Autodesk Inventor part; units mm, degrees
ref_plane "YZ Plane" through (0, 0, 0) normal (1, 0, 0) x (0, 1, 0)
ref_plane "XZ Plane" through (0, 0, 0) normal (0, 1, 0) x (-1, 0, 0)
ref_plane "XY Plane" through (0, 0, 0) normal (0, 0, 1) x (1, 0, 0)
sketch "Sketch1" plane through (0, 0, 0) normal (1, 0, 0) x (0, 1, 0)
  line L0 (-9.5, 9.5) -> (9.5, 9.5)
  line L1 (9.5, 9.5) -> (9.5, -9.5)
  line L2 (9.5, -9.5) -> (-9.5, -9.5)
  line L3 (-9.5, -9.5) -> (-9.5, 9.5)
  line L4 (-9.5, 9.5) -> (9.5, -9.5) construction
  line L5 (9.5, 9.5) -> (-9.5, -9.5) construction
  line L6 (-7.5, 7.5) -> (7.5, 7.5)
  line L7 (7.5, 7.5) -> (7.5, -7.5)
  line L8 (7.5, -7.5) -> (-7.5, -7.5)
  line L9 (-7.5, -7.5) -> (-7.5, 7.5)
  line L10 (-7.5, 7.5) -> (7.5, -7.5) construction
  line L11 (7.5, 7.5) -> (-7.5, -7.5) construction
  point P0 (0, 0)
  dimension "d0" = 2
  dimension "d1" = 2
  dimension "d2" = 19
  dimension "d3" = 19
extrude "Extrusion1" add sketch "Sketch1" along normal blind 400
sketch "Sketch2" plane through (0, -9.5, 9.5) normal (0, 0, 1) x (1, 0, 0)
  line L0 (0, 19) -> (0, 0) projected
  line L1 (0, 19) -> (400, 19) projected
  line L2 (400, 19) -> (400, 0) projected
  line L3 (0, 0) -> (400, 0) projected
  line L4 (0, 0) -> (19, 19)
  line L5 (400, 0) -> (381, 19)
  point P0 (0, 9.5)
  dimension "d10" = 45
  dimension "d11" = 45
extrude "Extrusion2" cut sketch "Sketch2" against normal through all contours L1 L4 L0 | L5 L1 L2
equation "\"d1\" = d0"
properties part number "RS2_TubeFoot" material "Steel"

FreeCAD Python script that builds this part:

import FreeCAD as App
import Part
import Sketcher

doc = App.newDocument("Part")
body = doc.addObject("PartDesign::Body", "Body")

# Sketch on YZ plane
sketch1 = doc.addObject("Sketcher::SketchObject", "Sketch")
body.addObject(sketch1)
sketch1.AttachmentSupport = (doc.YZ_Plane, [""])
sketch1.MapMode = "FlatFace"
sketch1.addGeometry([
    Part.LineSegment(App.Vector(9.5, 9.5, 0), App.Vector(-9.5, 9.5, 0)),  # 0
    Part.LineSegment(App.Vector(-9.5, 9.5, 0), App.Vector(-9.5, -9.5, 0)),  # 1
    Part.LineSegment(App.Vector(-9.5, -9.5, 0), App.Vector(9.5, -9.5, 0)),  # 2
    Part.LineSegment(App.Vector(9.5, -9.5, 0), App.Vector(9.5, 9.5, 0)),  # 3
    Part.LineSegment(App.Vector(-7.5, -7.5, 0), App.Vector(-7.5, 7.5, 0)),  # 4
    Part.LineSegment(App.Vector(-7.5, 7.5, 0), App.Vector(7.5, 7.5, 0)),  # 5
    Part.LineSegment(App.Vector(7.5, 7.5, 0), App.Vector(7.5, -7.5, 0)),  # 6
    Part.LineSegment(App.Vector(7.5, -7.5, 0), App.Vector(-7.5, -7.5, 0)),  # 7
], False)
sketch1.addConstraint([
    Sketcher.Constraint("Coincident", 0, 2, 1, 1),
    Sketcher.Constraint("Coincident", 1, 2, 2, 1),
    Sketcher.Constraint("Coincident", 2, 2, 3, 1),
    Sketcher.Constraint("Coincident", 3, 2, 0, 1),
    Sketcher.Constraint("Coincident", 4, 2, 5, 1),
    Sketcher.Constraint("Coincident", 5, 2, 6, 1),
    Sketcher.Constraint("Coincident", 6, 2, 7, 1),
    Sketcher.Constraint("Coincident", 7, 2, 4, 1),
    Sketcher.Constraint("Horizontal", 0),
    Sketcher.Constraint("Vertical", 1),
    Sketcher.Constraint("Horizontal", 2),
    Sketcher.Constraint("Vertical", 3),
    Sketcher.Constraint("Vertical", 4),
    Sketcher.Constraint("Horizontal", 5),
    Sketcher.Constraint("Vertical", 6),
    Sketcher.Constraint("Horizontal", 7),
    Sketcher.Constraint("Symmetric", 0, 2, 2, 2, -1, 1),
    Sketcher.Constraint("Symmetric", 4, 2, 6, 2, -1, 1),
    Sketcher.Constraint("Equal", 2, 1),
    Sketcher.Constraint("Equal", 7, 4),
    Sketcher.Constraint("DistanceX", 0, 2, 0, 1, 19.0),
    Sketcher.Constraint("DistanceX", 0, 2, 4, 2, 2.0),
])
pad1 = doc.addObject("PartDesign::Pad", "Pad")
body.addObject(pad1)
pad1.Profile = sketch1
pad1.Length = 400

# Sketch on XY plane
sketch2 = doc.addObject("Sketcher::SketchObject", "Sketch001")
body.addObject(sketch2)
sketch2.AttachmentSupport = (doc.XY_Plane, [""])
sketch2.MapMode = "FlatFace"
sketch2.AttachmentOffset = App.Placement(App.Vector(0, 0, 9.5), App.Rotation())
sketch2.addGeometry([
    Part.LineSegment(App.Vector(19, 9.5, 0), App.Vector(0, 9.5, 0)),  # 0
    Part.LineSegment(App.Vector(0, 9.5, 0), App.Vector(0, -9.5, 0)),  # 1
    Part.LineSegment(App.Vector(0, -9.5, 0), App.Vector(19, 9.5, 0)),  # 2
    Part.LineSegment(App.Vector(381, 9.5, 0), App.Vector(400, -9.5, 0)),  # 3
    Part.LineSegment(App.Vector(400, -9.5, 0), App.Vector(400, 9.5, 0)),  # 4
    Part.LineSegment(App.Vector(400, 9.5, 0), App.Vector(381, 9.5, 0)),  # 5
], False)
sketch2.addConstraint([
    Sketcher.Constraint("Coincident", 0, 2, 1, 1),
    Sketcher.Constraint("Coincident", 1, 2, 2, 1),
    Sketcher.Constraint("Coincident", 2, 2, 0, 1),
    Sketcher.Constraint("Coincident", 3, 2, 4, 1),
    Sketcher.Constraint("Coincident", 4, 2, 5, 1),
    Sketcher.Constraint("Coincident", 5, 2, 3, 1),
    Sketcher.Constraint("Horizontal", 0),
    Sketcher.Constraint("Vertical", 1),
    Sketcher.Constraint("Vertical", 4),
    Sketcher.Constraint("Horizontal", 5),
    Sketcher.Constraint("Symmetric", 0, 2, 1, 2, -1, 1),
    Sketcher.Constraint("Perpendicular", 2, 3),
    Sketcher.Constraint("Horizontal", 1, 2, 3, 2),
    Sketcher.Constraint("Horizontal", 2, 2, 4, 2),
    Sketcher.Constraint("Equal", 0, 5),
    Sketcher.Constraint("DistanceX", 0, 2, 0, 1, 19.0),
    Sketcher.Constraint("DistanceX", -1, 1, 3, 2, 400.0),
])
pocket1 = doc.addObject("PartDesign::Pocket", "Pocket")
body.addObject(pocket1)
pocket1.Profile = sketch2
pocket1.Type = "ThroughAll"

doc.recompute()
